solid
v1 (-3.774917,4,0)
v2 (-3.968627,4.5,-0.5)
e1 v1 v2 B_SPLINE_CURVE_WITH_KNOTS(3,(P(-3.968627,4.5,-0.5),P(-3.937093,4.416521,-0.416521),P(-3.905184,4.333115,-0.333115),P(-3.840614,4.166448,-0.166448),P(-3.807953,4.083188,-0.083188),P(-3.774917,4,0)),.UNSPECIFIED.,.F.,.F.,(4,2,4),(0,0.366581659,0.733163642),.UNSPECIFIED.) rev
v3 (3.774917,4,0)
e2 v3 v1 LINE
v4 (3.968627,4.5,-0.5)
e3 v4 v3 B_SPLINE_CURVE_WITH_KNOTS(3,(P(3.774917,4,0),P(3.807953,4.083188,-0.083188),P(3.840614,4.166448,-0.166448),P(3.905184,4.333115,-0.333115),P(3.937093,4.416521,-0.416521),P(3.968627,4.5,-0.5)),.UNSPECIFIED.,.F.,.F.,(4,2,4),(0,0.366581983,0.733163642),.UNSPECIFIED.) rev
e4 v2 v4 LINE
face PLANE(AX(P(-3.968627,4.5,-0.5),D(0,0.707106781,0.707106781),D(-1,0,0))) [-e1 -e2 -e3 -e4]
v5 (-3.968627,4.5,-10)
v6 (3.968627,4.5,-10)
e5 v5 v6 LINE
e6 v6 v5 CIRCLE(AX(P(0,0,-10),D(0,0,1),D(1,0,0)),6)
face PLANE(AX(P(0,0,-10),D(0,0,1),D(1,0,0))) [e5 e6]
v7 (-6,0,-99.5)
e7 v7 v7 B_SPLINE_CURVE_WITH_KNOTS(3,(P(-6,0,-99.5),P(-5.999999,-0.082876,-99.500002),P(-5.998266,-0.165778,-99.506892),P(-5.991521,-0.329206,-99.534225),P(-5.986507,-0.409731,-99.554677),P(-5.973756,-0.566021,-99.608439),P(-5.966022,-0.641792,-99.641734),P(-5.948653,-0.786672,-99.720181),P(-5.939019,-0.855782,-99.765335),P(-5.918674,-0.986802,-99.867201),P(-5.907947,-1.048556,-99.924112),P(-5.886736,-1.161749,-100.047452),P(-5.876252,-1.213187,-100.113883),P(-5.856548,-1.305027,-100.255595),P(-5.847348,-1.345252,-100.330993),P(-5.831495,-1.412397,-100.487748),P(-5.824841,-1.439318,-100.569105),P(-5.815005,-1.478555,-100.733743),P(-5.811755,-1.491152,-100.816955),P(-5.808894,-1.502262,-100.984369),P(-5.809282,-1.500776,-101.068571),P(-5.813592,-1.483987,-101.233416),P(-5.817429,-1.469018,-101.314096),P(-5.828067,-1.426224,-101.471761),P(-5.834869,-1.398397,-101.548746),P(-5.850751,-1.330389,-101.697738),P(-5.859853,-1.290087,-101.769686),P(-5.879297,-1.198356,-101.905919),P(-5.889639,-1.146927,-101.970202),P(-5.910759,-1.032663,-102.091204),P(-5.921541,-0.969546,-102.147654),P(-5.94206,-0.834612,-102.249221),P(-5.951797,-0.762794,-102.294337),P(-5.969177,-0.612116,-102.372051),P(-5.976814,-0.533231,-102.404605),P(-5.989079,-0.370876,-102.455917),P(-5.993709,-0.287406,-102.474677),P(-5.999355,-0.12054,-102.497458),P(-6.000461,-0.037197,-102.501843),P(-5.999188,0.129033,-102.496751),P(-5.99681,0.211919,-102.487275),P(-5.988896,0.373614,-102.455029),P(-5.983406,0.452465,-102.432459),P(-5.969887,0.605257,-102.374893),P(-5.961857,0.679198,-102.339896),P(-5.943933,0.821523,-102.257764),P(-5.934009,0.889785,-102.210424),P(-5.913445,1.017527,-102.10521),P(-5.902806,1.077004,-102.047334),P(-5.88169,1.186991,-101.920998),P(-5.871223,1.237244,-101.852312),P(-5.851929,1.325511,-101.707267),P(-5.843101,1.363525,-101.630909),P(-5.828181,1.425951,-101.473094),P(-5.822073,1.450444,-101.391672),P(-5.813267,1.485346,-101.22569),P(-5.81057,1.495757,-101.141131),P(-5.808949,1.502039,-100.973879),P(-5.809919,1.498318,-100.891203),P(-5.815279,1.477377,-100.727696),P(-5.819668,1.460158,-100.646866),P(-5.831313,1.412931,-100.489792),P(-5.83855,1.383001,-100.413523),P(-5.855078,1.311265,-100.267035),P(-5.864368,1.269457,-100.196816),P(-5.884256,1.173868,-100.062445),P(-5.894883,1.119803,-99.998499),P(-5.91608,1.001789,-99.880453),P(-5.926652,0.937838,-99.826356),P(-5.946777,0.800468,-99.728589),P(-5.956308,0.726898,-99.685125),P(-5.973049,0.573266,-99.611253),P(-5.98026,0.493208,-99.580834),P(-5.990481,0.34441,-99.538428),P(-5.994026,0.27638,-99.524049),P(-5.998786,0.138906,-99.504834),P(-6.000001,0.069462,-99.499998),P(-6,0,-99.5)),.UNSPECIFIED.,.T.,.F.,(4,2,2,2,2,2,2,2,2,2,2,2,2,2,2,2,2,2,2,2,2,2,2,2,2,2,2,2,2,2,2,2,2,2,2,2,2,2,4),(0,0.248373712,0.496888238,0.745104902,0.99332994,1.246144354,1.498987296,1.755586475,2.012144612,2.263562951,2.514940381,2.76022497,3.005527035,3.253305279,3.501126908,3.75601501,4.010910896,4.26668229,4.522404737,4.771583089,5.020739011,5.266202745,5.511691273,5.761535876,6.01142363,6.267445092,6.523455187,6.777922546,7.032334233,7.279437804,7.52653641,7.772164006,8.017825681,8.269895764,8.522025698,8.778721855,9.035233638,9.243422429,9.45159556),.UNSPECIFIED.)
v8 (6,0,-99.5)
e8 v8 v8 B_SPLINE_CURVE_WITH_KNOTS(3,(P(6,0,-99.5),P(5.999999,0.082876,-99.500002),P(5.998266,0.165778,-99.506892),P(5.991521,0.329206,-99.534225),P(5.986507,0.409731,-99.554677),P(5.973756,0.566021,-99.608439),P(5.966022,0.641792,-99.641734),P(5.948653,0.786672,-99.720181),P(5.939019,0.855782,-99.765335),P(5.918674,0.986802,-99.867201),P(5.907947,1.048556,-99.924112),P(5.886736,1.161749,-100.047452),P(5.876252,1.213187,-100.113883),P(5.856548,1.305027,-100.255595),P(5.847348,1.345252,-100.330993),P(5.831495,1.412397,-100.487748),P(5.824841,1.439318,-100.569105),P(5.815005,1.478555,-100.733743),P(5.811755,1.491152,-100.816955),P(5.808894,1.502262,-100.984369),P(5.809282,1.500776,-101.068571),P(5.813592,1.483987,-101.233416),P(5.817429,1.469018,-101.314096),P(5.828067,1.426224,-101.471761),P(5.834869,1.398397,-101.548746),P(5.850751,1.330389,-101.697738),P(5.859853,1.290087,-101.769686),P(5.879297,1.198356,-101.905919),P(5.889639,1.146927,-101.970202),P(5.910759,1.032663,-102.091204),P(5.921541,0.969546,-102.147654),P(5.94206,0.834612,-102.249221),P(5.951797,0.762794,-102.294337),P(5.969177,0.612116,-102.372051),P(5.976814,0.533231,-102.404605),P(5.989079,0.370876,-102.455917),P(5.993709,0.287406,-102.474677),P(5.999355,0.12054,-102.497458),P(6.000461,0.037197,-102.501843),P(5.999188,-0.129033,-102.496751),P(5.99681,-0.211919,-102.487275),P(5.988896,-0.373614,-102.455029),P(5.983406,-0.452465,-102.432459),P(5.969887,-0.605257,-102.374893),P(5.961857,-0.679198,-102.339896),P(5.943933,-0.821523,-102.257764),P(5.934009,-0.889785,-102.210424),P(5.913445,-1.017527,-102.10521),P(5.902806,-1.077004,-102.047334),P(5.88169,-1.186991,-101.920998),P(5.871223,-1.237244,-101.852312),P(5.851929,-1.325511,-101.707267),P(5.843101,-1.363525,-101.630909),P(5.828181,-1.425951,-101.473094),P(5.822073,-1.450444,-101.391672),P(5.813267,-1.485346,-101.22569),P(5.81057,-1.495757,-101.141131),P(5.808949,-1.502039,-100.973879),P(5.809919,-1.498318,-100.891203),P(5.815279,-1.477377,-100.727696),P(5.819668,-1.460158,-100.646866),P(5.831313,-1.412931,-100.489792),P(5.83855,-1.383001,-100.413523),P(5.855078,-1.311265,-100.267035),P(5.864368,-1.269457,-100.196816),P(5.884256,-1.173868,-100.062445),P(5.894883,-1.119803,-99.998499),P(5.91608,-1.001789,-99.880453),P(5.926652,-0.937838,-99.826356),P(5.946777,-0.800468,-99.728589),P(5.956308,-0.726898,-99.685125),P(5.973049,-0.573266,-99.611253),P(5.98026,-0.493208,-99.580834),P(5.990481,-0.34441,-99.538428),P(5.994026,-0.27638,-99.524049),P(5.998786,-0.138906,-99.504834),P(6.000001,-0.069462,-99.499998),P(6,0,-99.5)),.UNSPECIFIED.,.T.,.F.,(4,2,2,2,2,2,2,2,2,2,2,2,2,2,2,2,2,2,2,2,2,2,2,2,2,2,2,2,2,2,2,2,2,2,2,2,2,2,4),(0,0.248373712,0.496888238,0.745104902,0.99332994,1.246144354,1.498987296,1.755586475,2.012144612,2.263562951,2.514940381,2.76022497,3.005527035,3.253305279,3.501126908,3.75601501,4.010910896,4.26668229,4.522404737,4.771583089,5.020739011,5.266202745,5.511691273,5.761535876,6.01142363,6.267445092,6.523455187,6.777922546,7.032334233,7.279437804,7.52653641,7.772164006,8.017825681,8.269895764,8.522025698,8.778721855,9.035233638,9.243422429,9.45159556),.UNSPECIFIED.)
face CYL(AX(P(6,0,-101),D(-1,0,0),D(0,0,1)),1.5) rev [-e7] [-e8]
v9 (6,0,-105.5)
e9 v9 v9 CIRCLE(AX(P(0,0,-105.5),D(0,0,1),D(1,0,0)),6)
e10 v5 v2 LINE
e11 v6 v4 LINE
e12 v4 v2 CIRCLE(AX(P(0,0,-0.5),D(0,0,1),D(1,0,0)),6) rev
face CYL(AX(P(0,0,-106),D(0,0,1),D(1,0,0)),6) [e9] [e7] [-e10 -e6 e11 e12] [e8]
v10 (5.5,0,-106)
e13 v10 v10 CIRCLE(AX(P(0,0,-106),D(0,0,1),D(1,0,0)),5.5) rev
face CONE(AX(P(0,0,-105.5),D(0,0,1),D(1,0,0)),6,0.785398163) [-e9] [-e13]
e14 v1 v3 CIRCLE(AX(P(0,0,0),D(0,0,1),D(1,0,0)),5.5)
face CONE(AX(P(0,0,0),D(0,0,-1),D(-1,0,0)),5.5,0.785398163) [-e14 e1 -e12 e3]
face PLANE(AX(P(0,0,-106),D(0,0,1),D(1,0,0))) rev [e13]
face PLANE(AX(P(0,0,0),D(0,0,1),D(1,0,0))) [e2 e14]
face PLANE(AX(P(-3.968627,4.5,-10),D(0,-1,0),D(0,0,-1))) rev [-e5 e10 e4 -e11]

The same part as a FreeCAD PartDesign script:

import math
import FreeCAD as App
import Part
import Sketcher
from FreeCAD import Vector


def edges_at(feature, points):
    """Names of the edges that pass closest to the given points."""
    edges = feature.Shape.Edges
    near = lambda p: min(range(len(edges)), key=lambda i: edges[i].distToShape(Part.Vertex(*p))[0])
    return sorted({f"Edge{near(p) + 1}" for p in points})

doc = App.newDocument("Part")
params = doc.addObject("Spreadsheet::Sheet", "Params")
for row, (alias, value) in enumerate([
    ("sketch1_diameter", "12 mm"),
    ("pad1_length", "106 mm"),
    ("sketch2_diameter", "3 mm"),
    ("sketch3_radius", "6 mm"),
    ("pocket2_length", "10 mm"),
    ("chamfer_size", "0.5 mm"),
], start=1):
    params.set(f"A{row}", alias)
    params.set(f"B{row}", "=" + value)
    params.setAlias(f"B{row}", alias)

body = doc.addObject("PartDesign::Body", "Body")

sketch1 = doc.addObject("Sketcher::SketchObject", "Sketch")
body.addObject(sketch1)
sketch1.AttachmentSupport = (doc.XY_Plane, [""])
sketch1.MapMode = "FlatFace"
sketch1.addGeometry(Part.Circle(Vector(0, 0, 0), Vector(0, 0, 1), 6), False)
sketch1.addConstraint([
    Sketcher.Constraint("Coincident", 0, 3, -1, 1),
    Sketcher.Constraint("Diameter", 0, 12.0),
])
sketch1.setExpression("Constraints[1]", "Params.sketch1_diameter")
pad1 = doc.addObject("PartDesign::Pad", "Pad")
body.addObject(pad1)
pad1.Profile = sketch1
pad1.setExpression("Length", "Params.pad1_length")
pad1.Reversed = True

sketch2 = doc.addObject("Sketcher::SketchObject", "Sketch001")
body.addObject(sketch2)
sketch2.AttachmentSupport = (doc.YZ_Plane, [""])
sketch2.MapMode = "FlatFace"
sketch2.addGeometry(Part.Circle(Vector(0, -101, 0), Vector(0, 0, 1), 1.5), False)
sketch2.addConstraint([
    Sketcher.Constraint("PointOnObject", 0, 3, -2),
    Sketcher.Constraint("Diameter", 0, 3.0),
    Sketcher.Constraint("DistanceY", 0, 3, -1, 1, 101.0),
])
sketch2.setExpression("Constraints[1]", "Params.sketch2_diameter")
pocket1 = doc.addObject("PartDesign::Pocket", "Pocket")
body.addObject(pocket1)
pocket1.Profile = sketch2
pocket1.Type = "ThroughAll"
pocket1.Midplane = True

sketch3 = doc.addObject("Sketcher::SketchObject", "Sketch002")
body.addObject(sketch3)
sketch3.AttachmentSupport = (doc.XY_Plane, [""])
sketch3.MapMode = "FlatFace"
sketch3.addGeometry([
    Part.LineSegment(Vector(-4, 4, 0), Vector(4, 4, 0)),
    Part.ArcOfCircle(Part.Circle(Vector(0, 0, 0), Vector(0, 0, 1), 6), math.radians(49), math.radians(131)),
], False)
sketch3.addConstraint([
    Sketcher.Constraint("Coincident", 0, 1, 1, 2),
    Sketcher.Constraint("Coincident", 1, 1, 0, 2),
    Sketcher.Constraint("Horizontal", 0),
    Sketcher.Constraint("Coincident", 1, 3, -1, 1),
    Sketcher.Constraint("Radius", 1, 6.0),
    Sketcher.Constraint("DistanceY", -1, 1, 0, 1, 4.5),
])
sketch3.setExpression("Constraints[4]", "Params.sketch3_radius")
pocket2 = doc.addObject("PartDesign::Pocket", "Pocket001")
body.addObject(pocket2)
pocket2.Profile = sketch3
pocket2.setExpression("Length", "Params.pocket2_length")
doc.recompute()

chamfer = doc.addObject("PartDesign::Chamfer", "Chamfer")
body.addObject(chamfer)
chamfer.Base = (pocket2, edges_at(pocket2, [(-2.469, -5.469, 0), (0, 4.5, 0), (-6, 0, -106)]))
chamfer.setExpression("Size", "Params.chamfer_size")

doc.recompute()
